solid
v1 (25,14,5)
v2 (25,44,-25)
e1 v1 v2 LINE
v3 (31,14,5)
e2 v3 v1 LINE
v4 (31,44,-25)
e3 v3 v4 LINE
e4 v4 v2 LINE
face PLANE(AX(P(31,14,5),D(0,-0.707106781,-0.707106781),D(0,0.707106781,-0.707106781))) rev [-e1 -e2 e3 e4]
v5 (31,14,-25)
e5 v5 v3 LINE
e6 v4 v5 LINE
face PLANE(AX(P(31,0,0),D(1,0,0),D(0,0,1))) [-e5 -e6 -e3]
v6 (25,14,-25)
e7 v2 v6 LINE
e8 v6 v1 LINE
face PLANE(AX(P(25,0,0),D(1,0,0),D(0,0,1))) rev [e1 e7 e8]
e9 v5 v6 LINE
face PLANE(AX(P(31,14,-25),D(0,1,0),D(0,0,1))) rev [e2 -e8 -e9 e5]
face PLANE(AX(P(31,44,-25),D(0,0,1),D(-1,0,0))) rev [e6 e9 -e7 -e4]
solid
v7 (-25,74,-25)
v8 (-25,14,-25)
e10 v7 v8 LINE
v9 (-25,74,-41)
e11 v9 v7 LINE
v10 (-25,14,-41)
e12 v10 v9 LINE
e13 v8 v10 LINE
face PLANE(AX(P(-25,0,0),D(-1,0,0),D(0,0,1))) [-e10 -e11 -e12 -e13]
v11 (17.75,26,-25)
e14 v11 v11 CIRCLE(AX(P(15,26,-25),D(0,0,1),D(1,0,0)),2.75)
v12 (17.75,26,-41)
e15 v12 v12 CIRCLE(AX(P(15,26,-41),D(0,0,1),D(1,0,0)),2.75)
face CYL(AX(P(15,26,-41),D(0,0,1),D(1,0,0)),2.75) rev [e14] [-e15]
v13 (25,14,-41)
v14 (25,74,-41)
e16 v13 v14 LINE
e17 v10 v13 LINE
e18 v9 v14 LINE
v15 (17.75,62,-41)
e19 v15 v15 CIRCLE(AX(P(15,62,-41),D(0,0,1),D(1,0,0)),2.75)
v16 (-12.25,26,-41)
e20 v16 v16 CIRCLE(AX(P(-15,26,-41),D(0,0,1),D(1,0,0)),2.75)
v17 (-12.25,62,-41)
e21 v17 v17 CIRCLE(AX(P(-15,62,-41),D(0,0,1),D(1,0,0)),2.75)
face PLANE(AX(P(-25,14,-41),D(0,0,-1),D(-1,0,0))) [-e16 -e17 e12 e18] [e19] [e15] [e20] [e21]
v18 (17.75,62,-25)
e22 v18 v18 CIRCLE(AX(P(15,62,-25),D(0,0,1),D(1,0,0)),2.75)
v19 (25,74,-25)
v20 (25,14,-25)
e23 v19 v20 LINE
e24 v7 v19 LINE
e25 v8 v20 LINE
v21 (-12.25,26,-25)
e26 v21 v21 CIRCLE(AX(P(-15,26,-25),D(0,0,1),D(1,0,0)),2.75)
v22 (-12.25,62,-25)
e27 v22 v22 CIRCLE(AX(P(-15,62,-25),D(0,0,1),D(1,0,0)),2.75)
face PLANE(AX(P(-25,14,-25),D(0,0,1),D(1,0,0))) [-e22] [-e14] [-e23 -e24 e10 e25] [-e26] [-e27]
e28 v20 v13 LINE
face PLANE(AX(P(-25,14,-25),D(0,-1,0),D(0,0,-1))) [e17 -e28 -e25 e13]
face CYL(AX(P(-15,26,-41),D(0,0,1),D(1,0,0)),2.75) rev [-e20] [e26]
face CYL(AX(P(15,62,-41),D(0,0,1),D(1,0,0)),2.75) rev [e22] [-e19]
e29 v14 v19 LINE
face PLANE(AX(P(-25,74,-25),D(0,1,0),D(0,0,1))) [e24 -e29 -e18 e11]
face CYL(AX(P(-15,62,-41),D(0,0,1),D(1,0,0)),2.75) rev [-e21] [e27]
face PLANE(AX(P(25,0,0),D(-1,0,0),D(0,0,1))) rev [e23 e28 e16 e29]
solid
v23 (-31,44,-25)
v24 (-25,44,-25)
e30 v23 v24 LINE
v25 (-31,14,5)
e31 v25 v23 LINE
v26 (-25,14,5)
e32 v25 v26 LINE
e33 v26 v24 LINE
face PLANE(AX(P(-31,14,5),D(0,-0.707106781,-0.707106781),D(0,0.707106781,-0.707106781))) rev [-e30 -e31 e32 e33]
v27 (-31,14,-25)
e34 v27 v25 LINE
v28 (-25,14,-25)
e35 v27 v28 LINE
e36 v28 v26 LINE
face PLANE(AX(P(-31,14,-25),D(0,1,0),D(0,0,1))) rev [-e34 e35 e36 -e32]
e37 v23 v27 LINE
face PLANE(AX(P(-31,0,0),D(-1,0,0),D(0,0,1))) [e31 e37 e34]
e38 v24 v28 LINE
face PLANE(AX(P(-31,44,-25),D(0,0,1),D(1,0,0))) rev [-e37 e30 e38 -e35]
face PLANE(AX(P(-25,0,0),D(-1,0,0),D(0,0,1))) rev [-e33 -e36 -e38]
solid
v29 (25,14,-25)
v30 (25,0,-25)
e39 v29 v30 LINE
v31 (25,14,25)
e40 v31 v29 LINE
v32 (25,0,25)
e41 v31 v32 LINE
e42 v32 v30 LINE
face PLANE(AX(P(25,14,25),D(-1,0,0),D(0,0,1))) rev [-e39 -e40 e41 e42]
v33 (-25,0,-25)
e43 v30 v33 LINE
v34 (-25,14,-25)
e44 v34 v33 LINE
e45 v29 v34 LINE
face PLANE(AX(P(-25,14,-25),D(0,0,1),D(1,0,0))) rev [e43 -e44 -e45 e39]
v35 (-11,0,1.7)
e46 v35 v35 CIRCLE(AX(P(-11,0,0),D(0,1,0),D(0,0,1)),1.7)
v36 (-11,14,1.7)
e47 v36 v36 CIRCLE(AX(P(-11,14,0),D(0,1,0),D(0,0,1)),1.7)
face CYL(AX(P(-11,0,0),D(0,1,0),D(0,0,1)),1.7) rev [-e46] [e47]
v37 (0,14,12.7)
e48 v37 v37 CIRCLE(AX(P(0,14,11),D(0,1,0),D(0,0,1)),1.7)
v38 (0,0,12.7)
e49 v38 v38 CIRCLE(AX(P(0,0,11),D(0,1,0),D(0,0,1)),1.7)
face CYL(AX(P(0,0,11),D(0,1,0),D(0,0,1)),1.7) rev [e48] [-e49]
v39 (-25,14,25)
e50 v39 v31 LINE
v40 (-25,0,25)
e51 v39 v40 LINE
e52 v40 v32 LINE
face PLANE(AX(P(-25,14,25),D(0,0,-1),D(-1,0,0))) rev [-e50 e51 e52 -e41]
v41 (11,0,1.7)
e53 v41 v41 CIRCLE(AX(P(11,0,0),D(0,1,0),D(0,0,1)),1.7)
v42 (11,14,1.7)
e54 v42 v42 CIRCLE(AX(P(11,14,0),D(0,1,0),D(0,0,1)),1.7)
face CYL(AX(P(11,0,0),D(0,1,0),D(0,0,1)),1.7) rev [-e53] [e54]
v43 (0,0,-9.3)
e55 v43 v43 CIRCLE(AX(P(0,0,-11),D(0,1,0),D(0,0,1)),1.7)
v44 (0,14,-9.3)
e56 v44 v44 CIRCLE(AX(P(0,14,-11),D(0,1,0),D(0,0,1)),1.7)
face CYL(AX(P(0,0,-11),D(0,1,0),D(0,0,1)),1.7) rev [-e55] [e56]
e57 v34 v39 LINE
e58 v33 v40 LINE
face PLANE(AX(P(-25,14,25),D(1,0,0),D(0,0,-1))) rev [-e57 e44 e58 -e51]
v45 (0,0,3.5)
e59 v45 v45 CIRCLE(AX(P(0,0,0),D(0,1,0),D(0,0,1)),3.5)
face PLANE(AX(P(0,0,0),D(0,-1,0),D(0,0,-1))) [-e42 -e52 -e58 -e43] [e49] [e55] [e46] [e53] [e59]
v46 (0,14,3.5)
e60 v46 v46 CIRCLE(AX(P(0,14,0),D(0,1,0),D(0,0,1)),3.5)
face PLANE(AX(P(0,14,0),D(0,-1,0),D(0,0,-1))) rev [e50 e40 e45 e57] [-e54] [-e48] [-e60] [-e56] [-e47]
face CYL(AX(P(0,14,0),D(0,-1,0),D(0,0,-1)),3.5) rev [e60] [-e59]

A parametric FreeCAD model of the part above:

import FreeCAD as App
import Part
import Sketcher

V = App.Vector
Q = App.Units.Quantity

doc = App.newDocument("Part")
body = doc.addObject("PartDesign::Body", "Body")

sketch1 = body.newObject("Sketcher::SketchObject", "Sketch")
sketch1.AttachmentSupport = (doc.getObject("XZ_Plane"), [""])
sketch1.MapMode = "FlatFace"
sketch1.addGeometry(Part.LineSegment(V(-25, -25, 0), V(-25, 25, 0)), False)
sketch1.addGeometry(Part.LineSegment(V(-25, 25, 0), V(25, 25, 0)), False)
sketch1.addGeometry(Part.LineSegment(V(25, 25, 0), V(25, -25, 0)), False)
sketch1.addGeometry(Part.LineSegment(V(25, -25, 0), V(-25, -25, 0)), False)
sketch1.addGeometry(Part.Circle(V(0, 0, 0), V(0, 0, 1), 3.5), False)
sketch1.addConstraint(Sketcher.Constraint("Coincident", 0, 2, 1, 1))
sketch1.addConstraint(Sketcher.Constraint("Coincident", 1, 2, 2, 1))
sketch1.addConstraint(Sketcher.Constraint("Coincident", 2, 2, 3, 1))
sketch1.addConstraint(Sketcher.Constraint("Coincident", 3, 2, 0, 1))
sketch1.addConstraint(Sketcher.Constraint("Vertical", 0))
sketch1.addConstraint(Sketcher.Constraint("Horizontal", 1))
sketch1.addConstraint(Sketcher.Constraint("Vertical", 2))
sketch1.addConstraint(Sketcher.Constraint("Horizontal", 3))
sketch1.addConstraint(Sketcher.Constraint("Coincident", 4, 3, -1, 1))
sketch1.addConstraint(Sketcher.Constraint("Symmetric", 0, 2, 2, 2, -1, 1))
sketch1.addConstraint(Sketcher.Constraint("Equal", 3, 0))
sketch1.addConstraint(Sketcher.Constraint("Diameter", 4, Q("7 mm")))
sketch1.addConstraint(Sketcher.Constraint("DistanceX", 1, 1, 1, 2, Q("50 mm")))
pad1 = body.newObject("PartDesign::Pad", "Pad")
pad1.Profile = sketch1
pad1.Length = 14
pad1.Reversed = True

sketch2 = body.newObject("Sketcher::SketchObject", "Sketch001")
sketch2.AttachmentSupport = (doc.getObject("XZ_Plane"), [""])
sketch2.MapMode = "FlatFace"
sketch2.AttachmentOffset = App.Placement(V(0, 0, -14), App.Rotation())
sketch2.addGeometry(Part.Circle(V(0, -11, 0), V(0, 0, 1), 1.7), False)
sketch2.addGeometry(Part.Circle(V(11, 0, 0), V(0, 0, 1), 1.7), False)
sketch2.addGeometry(Part.Circle(V(0, 11, 0), V(0, 0, 1), 1.7), False)
sketch2.addGeometry(Part.Circle(V(-11, 0, 0), V(0, 0, 1), 1.7), False)
sketch2.addConstraint(Sketcher.Constraint("Equal", 0, 1))
sketch2.addConstraint(Sketcher.Constraint("Equal", 1, 2))
sketch2.addConstraint(Sketcher.Constraint("Equal", 2, 3))
sketch2.addConstraint(Sketcher.Constraint("Symmetric", 0, 3, 2, 3, -1, 1))
sketch2.addConstraint(Sketcher.Constraint("Symmetric", 1, 3, 3, 3, -1, 1))
sketch2.addConstraint(Sketcher.Constraint("PointOnObject", 0, 3, -2))
sketch2.addConstraint(Sketcher.Constraint("PointOnObject", 1, 3, -1))
sketch2.addConstraint(Sketcher.Constraint("Diameter", 0, Q("3.4 mm")))
sketch2.addConstraint(Sketcher.Constraint("DistanceY", 0, 3, -1, 1, Q("11 mm")))
sketch2.addConstraint(Sketcher.Constraint("DistanceX", -1, 1, 1, 3, Q("11 mm")))
pocket1 = body.newObject("PartDesign::Pocket", "Pocket")
pocket1.Profile = sketch2
pocket1.Type = "ThroughAll"
pocket1.Reversed = True
body2 = doc.addObject("PartDesign::Body", "Body001")

sketch3 = body2.newObject("Sketcher::SketchObject", "Sketch002")
sketch3.AttachmentSupport = (doc.getObject("YZ_Plane001"), [""])
sketch3.MapMode = "FlatFace"
sketch3.AttachmentOffset = App.Placement(V(0, 0, 25), App.Rotation())
sketch3.addGeometry(Part.LineSegment(V(74, -25, 0), V(14, -25, 0)), False)
sketch3.addGeometry(Part.LineSegment(V(14, -25, 0), V(14, -41, 0)), False)
sketch3.addGeometry(Part.LineSegment(V(14, -41, 0), V(74, -41, 0)), False)
sketch3.addGeometry(Part.LineSegment(V(74, -41, 0), V(74, -25, 0)), False)
sketch3.addConstraint(Sketcher.Constraint("Coincident", 0, 2, 1, 1))
sketch3.addConstraint(Sketcher.Constraint("Coincident", 1, 2, 2, 1))
sketch3.addConstraint(Sketcher.Constraint("Coincident", 2, 2, 3, 1))
sketch3.addConstraint(Sketcher.Constraint("Coincident", 3, 2, 0, 1))
sketch3.addConstraint(Sketcher.Constraint("Horizontal", 0))
sketch3.addConstraint(Sketcher.Constraint("Vertical", 1))
sketch3.addConstraint(Sketcher.Constraint("Horizontal", 2))
sketch3.addConstraint(Sketcher.Constraint("Vertical", 3))
sketch3.addConstraint(Sketcher.Constraint("DistanceX", 0, 2, 0, 1, Q("60 mm")))
sketch3.addConstraint(Sketcher.Constraint("DistanceY", 1, 2, 1, 1, Q("16 mm")))
sketch3.addConstraint(Sketcher.Constraint("DistanceX", -1, 1, 0, 2, Q("14 mm")))
sketch3.addConstraint(Sketcher.Constraint("DistanceY", 0, 2, -1, 1, Q("25 mm")))
pad2 = body2.newObject("PartDesign::Pad", "Pad001")
pad2.Profile = sketch3
pad2.Length = 50
pad2.Reversed = True

sketch4 = body2.newObject("Sketcher::SketchObject", "Sketch003")
sketch4.AttachmentSupport = (doc.getObject("XY_Plane001"), [""])
sketch4.MapMode = "FlatFace"
sketch4.AttachmentOffset = App.Placement(V(0, 0, -25), App.Rotation())
sketch4.addGeometry(Part.Circle(V(-15, 62, 0), V(0, 0, 1), 2.8), False)
sketch4.addGeometry(Part.Circle(V(15, 62, 0), V(0, 0, 1), 2.8), False)
sketch4.addGeometry(Part.Circle(V(15, 26, 0), V(0, 0, 1), 2.8), False)
sketch4.addGeometry(Part.Circle(V(-15, 26, 0), V(0, 0, 1), 2.8), False)
sketch4.addConstraint(Sketcher.Constraint("Equal", 0, 1))
sketch4.addConstraint(Sketcher.Constraint("Equal", 1, 2))
sketch4.addConstraint(Sketcher.Constraint("Equal", 2, 3))
sketch4.addConstraint(Sketcher.Constraint("Symmetric", 0, 3, 1, 3, -2))
sketch4.addConstraint(Sketcher.Constraint("Symmetric", 2, 3, 3, 3, -2))
sketch4.addConstraint(Sketcher.Constraint("Vertical", 1, 3, 2, 3))
sketch4.addConstraint(Sketcher.Constraint("Diameter", 0, Q("5.5 mm")))
sketch4.addConstraint(Sketcher.Constraint("DistanceX", 0, 3, -1, 1, Q("15 mm")))
sketch4.addConstraint(Sketcher.Constraint("DistanceY", -1, 1, 0, 3, Q("62 mm")))
sketch4.addConstraint(Sketcher.Constraint("DistanceY", -1, 1, 2, 3, Q("26 mm")))
pocket2 = body2.newObject("PartDesign::Pocket", "Pocket001")
pocket2.Profile = sketch4
pocket2.Type = "ThroughAll"
body3 = doc.addObject("PartDesign::Body", "Body002")

sketch5 = body3.newObject("Sketcher::SketchObject", "Sketch004")
sketch5.AttachmentSupport = (doc.getObject("YZ_Plane002"), [""])
sketch5.MapMode = "FlatFace"
sketch5.AttachmentOffset = App.Placement(V(0, 0, -25), App.Rotation())
sketch5.addGeometry(Part.LineSegment(V(14, -25, 0), V(14, 5, 0)), False)
sketch5.addGeometry(Part.LineSegment(V(14, 5, 0), V(44, -25, 0)), False)
sketch5.addGeometry(Part.LineSegment(V(44, -25, 0), V(14, -25, 0)), False)
sketch5.addConstraint(Sketcher.Constraint("Coincident", 0, 2, 1, 1))
sketch5.addConstraint(Sketcher.Constraint("Coincident", 1, 2, 2, 1))
sketch5.addConstraint(Sketcher.Constraint("Coincident", 2, 2, 0, 1))
sketch5.addConstraint(Sketcher.Constraint("Vertical", 0))
sketch5.addConstraint(Sketcher.Constraint("Horizontal", 2))
sketch5.addConstraint(Sketcher.Constraint("Equal", 2, 0))
sketch5.addConstraint(Sketcher.Constraint("DistanceX", 2, 2, 2, 1, Q("30 mm")))
sketch5.addConstraint(Sketcher.Constraint("DistanceX", -1, 1, 0, 2, Q("14 mm")))
sketch5.addConstraint(Sketcher.Constraint("DistanceY", -1, 1, 0, 2, Q("5 mm")))
pad3 = body3.newObject("PartDesign::Pad", "Pad002")
pad3.Profile = sketch5
pad3.Length = 6
pad3.Reversed = True
body4 = doc.addObject("PartDesign::Body", "Body003")
doc.recompute()

mirroring = doc.addObject("Part::Mirroring", "Mirroring")
mirroring.Source = body3
mirroring.Base = V(0, 0, 0)
mirroring.Normal = V(1, 0, 0)
body4.BaseFeature = mirroring
doc.recompute()
mirroring.Visibility = False

doc.recompute()
